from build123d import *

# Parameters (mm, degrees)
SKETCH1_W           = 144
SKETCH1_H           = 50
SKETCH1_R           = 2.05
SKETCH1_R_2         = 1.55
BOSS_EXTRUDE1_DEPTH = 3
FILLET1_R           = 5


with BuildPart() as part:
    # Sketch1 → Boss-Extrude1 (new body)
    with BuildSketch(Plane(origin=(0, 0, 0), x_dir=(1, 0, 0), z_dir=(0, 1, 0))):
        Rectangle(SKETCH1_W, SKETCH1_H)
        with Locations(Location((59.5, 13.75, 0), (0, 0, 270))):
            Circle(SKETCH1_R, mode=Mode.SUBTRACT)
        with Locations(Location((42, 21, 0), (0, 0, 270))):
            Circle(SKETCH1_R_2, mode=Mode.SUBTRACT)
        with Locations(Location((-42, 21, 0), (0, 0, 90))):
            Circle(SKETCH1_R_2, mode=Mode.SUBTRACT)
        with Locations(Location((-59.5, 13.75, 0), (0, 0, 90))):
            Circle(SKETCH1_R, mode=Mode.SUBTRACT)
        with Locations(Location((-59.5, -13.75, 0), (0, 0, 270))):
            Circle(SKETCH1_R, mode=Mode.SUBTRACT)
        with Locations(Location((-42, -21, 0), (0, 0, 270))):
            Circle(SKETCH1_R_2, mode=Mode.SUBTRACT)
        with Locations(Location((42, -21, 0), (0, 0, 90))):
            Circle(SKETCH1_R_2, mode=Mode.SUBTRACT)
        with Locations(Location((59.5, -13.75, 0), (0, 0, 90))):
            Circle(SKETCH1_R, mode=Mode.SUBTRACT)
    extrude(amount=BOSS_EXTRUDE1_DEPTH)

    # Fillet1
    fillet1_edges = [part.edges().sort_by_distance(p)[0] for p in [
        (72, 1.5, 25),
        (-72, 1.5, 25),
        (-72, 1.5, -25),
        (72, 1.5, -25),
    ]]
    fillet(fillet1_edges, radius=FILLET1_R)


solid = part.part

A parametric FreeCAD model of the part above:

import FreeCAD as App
import Part
import Sketcher
from FreeCAD import Vector


def edges_at(feature, points):
    """Names of the edges that pass closest to the given points."""
    edges = feature.Shape.Edges
    near = lambda p: min(range(len(edges)), key=lambda i: edges[i].distToShape(Part.Vertex(*p))[0])
    return sorted({f"Edge{near(p) + 1}" for p in points})

doc = App.newDocument("Part")
body = doc.addObject("PartDesign::Body", "Body")

# Sketch on XZ plane
sketch1 = doc.addObject("Sketcher::SketchObject", "Sketch")
body.addObject(sketch1)
sketch1.AttachmentSupport = (doc.XZ_Plane, [""])
sketch1.MapMode = "FlatFace"
sketch1.addGeometry(Part.LineSegment(Vector(-72, -25, 0), Vector(-72, 25, 0)), False)
sketch1.addGeometry(Part.LineSegment(Vector(-72, 25, 0), Vector(72, 25, 0)), False)
sketch1.addGeometry(Part.LineSegment(Vector(72, 25, 0), Vector(72, -25, 0)), False)
sketch1.addGeometry(Part.LineSegment(Vector(72, -25, 0), Vector(-72, -25, 0)), False)
sketch1.addGeometry(Part.Circle(Vector(-42, 21, 0), Vector(0, 0, 1), 1.6), False)
sketch1.addGeometry(Part.Circle(Vector(-59.5, 13.8, 0), Vector(0, 0, 1), 2), False)
sketch1.addGeometry(Part.Circle(Vector(42, 21, 0), Vector(0, 0, 1), 1.6), False)
sketch1.addGeometry(Part.Circle(Vector(59.5, 13.8, 0), Vector(0, 0, 1), 2), False)
sketch1.addGeometry(Part.Circle(Vector(-59.5, -13.8, 0), Vector(0, 0, 1), 2), False)
sketch1.addGeometry(Part.Circle(Vector(-42, -21, 0), Vector(0, 0, 1), 1.6), False)
sketch1.addGeometry(Part.Circle(Vector(59.5, -13.8, 0), Vector(0, 0, 1), 2), False)
sketch1.addGeometry(Part.Circle(Vector(42, -21, 0), Vector(0, 0, 1), 1.6), False)
sketch1.addConstraint(Sketcher.Constraint("Coincident", 0, 2, 1, 1))
sketch1.addConstraint(Sketcher.Constraint("Coincident", 1, 2, 2, 1))
sketch1.addConstraint(Sketcher.Constraint("Coincident", 2, 2, 3, 1))
sketch1.addConstraint(Sketcher.Constraint("Coincident", 3, 2, 0, 1))
sketch1.addConstraint(Sketcher.Constraint("Vertical", 0))
sketch1.addConstraint(Sketcher.Constraint("Horizontal", 1))
sketch1.addConstraint(Sketcher.Constraint("Vertical", 2))
sketch1.addConstraint(Sketcher.Constraint("Horizontal", 3))
sketch1.addConstraint(Sketcher.Constraint("Equal", 4, 6))
sketch1.addConstraint(Sketcher.Constraint("Equal", 5, 7))
sketch1.addConstraint(Sketcher.Constraint("Equal", 7, 8))
sketch1.addConstraint(Sketcher.Constraint("Equal", 6, 9))
sketch1.addConstraint(Sketcher.Constraint("Equal", 8, 10))
sketch1.addConstraint(Sketcher.Constraint("Equal", 9, 11))
sketch1.addConstraint(Sketcher.Constraint("Symmetric", 7, 3, 8, 3, -1, 1))
sketch1.addConstraint(Sketcher.Constraint("Symmetric", 6, 3, 9, 3, -1, 1))
sketch1.addConstraint(Sketcher.Constraint("Symmetric", 5, 3, 10, 3, -1, 1))
sketch1.addConstraint(Sketcher.Constraint("Symmetric", 4, 3, 11, 3, -1, 1))
sketch1.addConstraint(Sketcher.Constraint("Symmetric", 0, 2, 2, 2, -1, 1))
sketch1.addConstraint(Sketcher.Constraint("Symmetric", 4, 3, 6, 3, -2))
sketch1.addConstraint(Sketcher.Constraint("Symmetric", 5, 3, 7, 3, -2))
sketch1.addConstraint(Sketcher.Constraint("Diameter", 4, 3.1))
sketch1.addConstraint(Sketcher.Constraint("Diameter", 5, 4.1))
sketch1.addConstraint(Sketcher.Constraint("DistanceX", 1, 1, 1, 2, 144.0))
sketch1.addConstraint(Sketcher.Constraint("DistanceY", 0, 1, 0, 2, 50.0))
sketch1.addConstraint(Sketcher.Constraint("DistanceX", 4, 3, -1, 1, 42.0))
sketch1.addConstraint(Sketcher.Constraint("DistanceY", -1, 1, 4, 3, 21.0))
sketch1.addConstraint(Sketcher.Constraint("DistanceX", 5, 3, 7, 3, 119.0))
sketch1.addConstraint(Sketcher.Constraint("DistanceY", 8, 3, 5, 3, 27.5))
pad1 = doc.addObject("PartDesign::Pad", "Pad")
body.addObject(pad1)
pad1.Profile = sketch1
pad1.Length = 3
pad1.Reversed = True
doc.recompute()

fillet = doc.addObject("PartDesign::Fillet", "Fillet")
body.addObject(fillet)
fillet.Base = (pad1, edges_at(pad1, [
    (72, 1.5, 25),
    (-72, 1.5, 25),
    (-72, 1.5, -25),
    (72, 1.5, -25),
]))
fillet.Radius = 5

doc.recompute()
